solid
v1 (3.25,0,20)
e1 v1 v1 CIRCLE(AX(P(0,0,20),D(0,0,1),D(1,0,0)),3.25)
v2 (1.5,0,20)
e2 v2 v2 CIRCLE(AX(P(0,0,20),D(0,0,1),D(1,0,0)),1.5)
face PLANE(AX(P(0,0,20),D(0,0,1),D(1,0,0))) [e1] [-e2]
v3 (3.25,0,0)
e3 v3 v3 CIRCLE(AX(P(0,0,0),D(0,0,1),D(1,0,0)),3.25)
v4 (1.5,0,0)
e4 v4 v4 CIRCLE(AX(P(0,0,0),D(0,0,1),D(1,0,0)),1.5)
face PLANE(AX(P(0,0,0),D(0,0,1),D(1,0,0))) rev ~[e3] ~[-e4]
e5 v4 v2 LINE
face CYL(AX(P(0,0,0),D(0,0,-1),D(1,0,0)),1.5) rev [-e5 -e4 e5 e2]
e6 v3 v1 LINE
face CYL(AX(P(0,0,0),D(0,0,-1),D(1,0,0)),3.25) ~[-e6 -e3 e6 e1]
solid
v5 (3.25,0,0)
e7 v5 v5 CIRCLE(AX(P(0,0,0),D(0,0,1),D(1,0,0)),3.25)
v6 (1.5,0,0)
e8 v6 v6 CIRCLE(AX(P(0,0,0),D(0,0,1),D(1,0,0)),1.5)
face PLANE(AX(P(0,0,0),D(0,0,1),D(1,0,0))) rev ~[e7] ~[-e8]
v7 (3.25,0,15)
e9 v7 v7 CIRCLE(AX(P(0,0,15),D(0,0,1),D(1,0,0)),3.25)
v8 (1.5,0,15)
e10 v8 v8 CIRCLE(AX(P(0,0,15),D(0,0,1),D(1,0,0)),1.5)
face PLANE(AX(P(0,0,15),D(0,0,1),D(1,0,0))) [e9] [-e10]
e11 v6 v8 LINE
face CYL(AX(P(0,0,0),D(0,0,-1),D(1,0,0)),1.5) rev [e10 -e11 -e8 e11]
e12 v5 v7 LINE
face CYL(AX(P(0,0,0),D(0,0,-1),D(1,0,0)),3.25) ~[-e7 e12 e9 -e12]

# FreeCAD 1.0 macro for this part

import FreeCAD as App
import Part
import Sketcher
Q = App.Units.Quantity

doc = App.newDocument("Part")
body = doc.addObject("PartDesign::Body", "Body")

# Sketch on XY plane
sketch1 = doc.addObject("Sketcher::SketchObject", "Sketch")
body.addObject(sketch1)
sketch1.AttachmentSupport = (doc.XY_Plane, [""])
sketch1.MapMode = "FlatFace"
sketch1.addGeometry(Part.Circle(App.Vector(0, 0, 0), App.Vector(0, 0, 1), 3.2), False)
sketch1.addGeometry(Part.Circle(App.Vector(0, 0, 0), App.Vector(0, 0, 1), 1.5), False)
sketch1.addConstraint(Sketcher.Constraint("Coincident", 0, 3, -1, 1))
sketch1.addConstraint(Sketcher.Constraint("Coincident", 1, 3, -1, 1))
sketch1.addConstraint(Sketcher.Constraint("Diameter", 1, Q("3 mm")))
sketch1.addConstraint(Sketcher.Constraint("Diameter", 0, Q("6.5 mm")))
pad1 = doc.addObject("PartDesign::Pad", "Pad")
body.addObject(pad1)
pad1.Profile = sketch1
pad1.Length = 15
body2 = doc.addObject("PartDesign::Body", "Body001")

# Sketch on XY plane
sketch2 = doc.addObject("Sketcher::SketchObject", "Sketch001")
body2.addObject(sketch2)
sketch2.AttachmentSupport = (doc.getObject("XY_Plane001"), [""])
sketch2.MapMode = "FlatFace"
sketch2.addGeometry(Part.Circle(App.Vector(0, 0, 0), App.Vector(0, 0, 1), 3.2), False)
sketch2.addGeometry(Part.Circle(App.Vector(0, 0, 0), App.Vector(0, 0, 1), 1.5), False)
sketch2.addConstraint(Sketcher.Constraint("Coincident", 0, 3, -1, 1))
sketch2.addConstraint(Sketcher.Constraint("Coincident", 1, 3, -1, 1))
sketch2.addConstraint(Sketcher.Constraint("Diameter", 1, Q("3 mm")))
sketch2.addConstraint(Sketcher.Constraint("Diameter", 0, Q("6.5 mm")))
pad2 = doc.addObject("PartDesign::Pad", "Pad001")
body2.addObject(pad2)
pad2.Profile = sketch2
pad2.Length = 20

doc.recompute()
